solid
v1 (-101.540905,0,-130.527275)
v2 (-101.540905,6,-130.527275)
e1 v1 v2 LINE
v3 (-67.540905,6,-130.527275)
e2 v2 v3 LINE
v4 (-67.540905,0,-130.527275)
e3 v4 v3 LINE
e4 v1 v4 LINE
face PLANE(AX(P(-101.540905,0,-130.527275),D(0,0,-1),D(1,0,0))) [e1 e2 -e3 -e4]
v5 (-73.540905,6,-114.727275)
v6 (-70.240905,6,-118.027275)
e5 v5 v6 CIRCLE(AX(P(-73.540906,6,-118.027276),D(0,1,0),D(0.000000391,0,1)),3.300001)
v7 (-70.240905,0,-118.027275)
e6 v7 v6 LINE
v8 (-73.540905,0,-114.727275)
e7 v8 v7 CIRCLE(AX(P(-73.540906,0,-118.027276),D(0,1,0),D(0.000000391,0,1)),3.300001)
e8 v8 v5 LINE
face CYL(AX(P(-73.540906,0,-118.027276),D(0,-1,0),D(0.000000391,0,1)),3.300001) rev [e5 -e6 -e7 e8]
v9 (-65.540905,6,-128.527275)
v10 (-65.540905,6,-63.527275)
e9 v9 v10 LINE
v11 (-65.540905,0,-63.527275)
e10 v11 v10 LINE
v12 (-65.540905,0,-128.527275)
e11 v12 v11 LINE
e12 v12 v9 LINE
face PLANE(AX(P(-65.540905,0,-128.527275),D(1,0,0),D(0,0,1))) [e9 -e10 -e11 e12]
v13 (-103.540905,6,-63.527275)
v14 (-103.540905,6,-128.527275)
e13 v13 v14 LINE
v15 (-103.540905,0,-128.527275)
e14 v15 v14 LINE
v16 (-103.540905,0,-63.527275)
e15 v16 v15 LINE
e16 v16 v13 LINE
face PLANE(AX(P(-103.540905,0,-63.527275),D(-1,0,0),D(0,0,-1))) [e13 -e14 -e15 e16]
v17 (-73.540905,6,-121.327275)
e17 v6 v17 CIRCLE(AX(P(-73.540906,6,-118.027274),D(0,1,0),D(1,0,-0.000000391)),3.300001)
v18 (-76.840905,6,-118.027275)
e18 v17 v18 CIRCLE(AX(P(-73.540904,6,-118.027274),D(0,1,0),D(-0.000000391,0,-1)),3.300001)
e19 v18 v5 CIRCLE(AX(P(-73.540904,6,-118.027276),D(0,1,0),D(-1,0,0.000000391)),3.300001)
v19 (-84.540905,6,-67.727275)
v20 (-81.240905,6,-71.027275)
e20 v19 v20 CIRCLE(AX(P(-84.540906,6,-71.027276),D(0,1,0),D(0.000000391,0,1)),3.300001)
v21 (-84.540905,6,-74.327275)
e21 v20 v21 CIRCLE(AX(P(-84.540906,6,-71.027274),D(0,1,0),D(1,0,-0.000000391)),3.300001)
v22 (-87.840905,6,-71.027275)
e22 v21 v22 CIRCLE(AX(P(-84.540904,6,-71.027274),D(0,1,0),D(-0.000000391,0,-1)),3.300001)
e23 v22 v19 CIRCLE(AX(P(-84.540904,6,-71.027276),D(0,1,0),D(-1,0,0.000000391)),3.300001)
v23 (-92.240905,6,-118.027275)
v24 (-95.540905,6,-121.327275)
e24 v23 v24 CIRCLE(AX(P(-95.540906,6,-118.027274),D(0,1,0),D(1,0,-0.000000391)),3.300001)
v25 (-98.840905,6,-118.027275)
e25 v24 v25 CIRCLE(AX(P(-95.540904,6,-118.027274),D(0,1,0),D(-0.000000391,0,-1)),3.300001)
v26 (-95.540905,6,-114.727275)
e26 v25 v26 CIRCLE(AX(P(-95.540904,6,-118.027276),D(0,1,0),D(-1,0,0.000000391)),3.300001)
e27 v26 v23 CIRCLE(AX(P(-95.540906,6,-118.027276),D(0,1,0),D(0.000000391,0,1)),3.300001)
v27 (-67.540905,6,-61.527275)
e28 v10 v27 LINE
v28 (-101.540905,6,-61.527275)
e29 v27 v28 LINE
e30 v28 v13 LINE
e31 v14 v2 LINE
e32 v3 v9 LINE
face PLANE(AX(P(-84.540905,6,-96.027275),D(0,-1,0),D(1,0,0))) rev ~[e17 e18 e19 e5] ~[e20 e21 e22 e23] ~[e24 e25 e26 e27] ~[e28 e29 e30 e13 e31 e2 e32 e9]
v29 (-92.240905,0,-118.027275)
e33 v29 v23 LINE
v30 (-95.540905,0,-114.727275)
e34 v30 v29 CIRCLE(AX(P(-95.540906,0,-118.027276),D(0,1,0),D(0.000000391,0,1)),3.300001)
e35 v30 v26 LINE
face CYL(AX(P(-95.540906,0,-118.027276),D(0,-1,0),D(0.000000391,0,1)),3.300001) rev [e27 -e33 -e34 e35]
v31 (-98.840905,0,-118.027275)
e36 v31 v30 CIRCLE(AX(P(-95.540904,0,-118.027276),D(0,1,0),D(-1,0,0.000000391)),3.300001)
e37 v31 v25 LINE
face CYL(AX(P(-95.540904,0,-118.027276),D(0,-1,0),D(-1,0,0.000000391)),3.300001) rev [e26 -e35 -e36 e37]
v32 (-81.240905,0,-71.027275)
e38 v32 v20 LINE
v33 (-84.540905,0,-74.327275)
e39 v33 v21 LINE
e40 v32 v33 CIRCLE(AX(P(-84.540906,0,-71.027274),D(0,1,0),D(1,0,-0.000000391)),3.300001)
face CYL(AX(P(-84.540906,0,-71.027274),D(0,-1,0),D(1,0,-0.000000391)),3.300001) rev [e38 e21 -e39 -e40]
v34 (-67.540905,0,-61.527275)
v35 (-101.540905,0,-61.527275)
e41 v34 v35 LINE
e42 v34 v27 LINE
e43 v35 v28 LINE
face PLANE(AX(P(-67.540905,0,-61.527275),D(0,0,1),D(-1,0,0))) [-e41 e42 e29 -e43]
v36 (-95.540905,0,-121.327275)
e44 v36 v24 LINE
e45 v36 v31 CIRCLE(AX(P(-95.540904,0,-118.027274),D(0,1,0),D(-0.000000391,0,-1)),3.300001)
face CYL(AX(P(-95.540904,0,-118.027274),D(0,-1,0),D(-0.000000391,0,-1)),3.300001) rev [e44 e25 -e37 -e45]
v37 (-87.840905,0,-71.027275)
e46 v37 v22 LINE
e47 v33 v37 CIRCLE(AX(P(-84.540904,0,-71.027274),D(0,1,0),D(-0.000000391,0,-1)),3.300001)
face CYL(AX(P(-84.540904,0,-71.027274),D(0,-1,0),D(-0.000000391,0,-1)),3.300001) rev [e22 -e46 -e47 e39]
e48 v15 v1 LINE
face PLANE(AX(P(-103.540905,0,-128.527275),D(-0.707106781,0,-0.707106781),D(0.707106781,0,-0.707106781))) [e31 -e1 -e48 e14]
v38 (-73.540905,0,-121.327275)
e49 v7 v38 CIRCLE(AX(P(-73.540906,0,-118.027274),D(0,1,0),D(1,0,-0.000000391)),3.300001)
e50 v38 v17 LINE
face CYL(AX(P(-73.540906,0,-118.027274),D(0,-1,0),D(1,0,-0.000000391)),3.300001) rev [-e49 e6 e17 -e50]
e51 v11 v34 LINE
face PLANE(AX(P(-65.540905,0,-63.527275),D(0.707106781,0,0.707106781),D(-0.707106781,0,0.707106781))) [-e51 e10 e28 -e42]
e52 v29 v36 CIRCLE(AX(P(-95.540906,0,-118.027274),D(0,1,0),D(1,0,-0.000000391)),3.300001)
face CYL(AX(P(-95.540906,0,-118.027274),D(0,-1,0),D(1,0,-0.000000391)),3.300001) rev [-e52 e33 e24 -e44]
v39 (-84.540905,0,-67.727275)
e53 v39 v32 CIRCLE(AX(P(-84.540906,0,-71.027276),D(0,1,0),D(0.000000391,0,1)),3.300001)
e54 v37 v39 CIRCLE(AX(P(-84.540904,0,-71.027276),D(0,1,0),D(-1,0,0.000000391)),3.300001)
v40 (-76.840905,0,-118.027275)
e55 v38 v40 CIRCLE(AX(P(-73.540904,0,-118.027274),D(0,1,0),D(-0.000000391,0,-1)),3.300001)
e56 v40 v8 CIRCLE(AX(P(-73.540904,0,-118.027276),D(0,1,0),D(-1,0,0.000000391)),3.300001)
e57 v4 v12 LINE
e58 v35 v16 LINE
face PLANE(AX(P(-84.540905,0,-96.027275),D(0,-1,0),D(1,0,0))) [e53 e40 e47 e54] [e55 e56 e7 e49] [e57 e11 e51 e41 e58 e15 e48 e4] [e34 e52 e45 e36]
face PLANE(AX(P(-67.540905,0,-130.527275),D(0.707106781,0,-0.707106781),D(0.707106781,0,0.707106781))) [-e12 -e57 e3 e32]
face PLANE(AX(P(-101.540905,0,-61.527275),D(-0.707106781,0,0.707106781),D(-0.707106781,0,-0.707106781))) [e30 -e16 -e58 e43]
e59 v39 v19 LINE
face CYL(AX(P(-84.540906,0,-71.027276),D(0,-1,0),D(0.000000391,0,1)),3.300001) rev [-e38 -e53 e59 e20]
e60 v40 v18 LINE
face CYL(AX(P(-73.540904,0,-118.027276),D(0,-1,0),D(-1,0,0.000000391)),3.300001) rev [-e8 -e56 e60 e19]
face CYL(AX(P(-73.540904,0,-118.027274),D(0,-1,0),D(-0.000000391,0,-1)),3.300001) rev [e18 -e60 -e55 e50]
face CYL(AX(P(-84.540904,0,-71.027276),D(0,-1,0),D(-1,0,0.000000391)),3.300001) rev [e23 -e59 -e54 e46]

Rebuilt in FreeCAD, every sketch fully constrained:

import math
import FreeCAD as App
import Part
import Sketcher
Q = App.Units.Quantity

doc = App.newDocument("Part")
params = doc.addObject("Spreadsheet::Sheet", "Params")
for row, (alias, value) in enumerate([
    ("sketch1_radius", "3.300001 mm"),
    ("sketch1_width", "34 mm"),
    ("sketch1_height", "65 mm"),
    ("pad1_length", "6 mm"),
], start=1):
    params.set(f"A{row}", alias)
    params.set(f"B{row}", "=" + value)
    params.setAlias(f"B{row}", alias)

body = doc.addObject("PartDesign::Body", "Body")

# Sketch on XZ plane
sketch1 = body.newObject("Sketcher::SketchObject", "Sketch")
sketch1.AttachmentSupport = (doc.getObject("XZ_Plane"), [""])
sketch1.MapMode = "FlatFace"
sketch1.addGeometry([
    Part.LineSegment(App.Vector(-65.5, -63.5, 0), App.Vector(-67.5, -61.5, 0)),  # 0
    Part.LineSegment(App.Vector(-67.5, -61.5, 0), App.Vector(-101.5, -61.5, 0)),  # 1
    Part.LineSegment(App.Vector(-101.5, -61.5, 0), App.Vector(-103.5, -63.5, 0)),  # 2
    Part.LineSegment(App.Vector(-103.5, -63.5, 0), App.Vector(-103.5, -128.5, 0)),  # 3
    Part.LineSegment(App.Vector(-103.5, -128.5, 0), App.Vector(-101.5, -130.5, 0)),  # 4
    Part.LineSegment(App.Vector(-101.5, -130.5, 0), App.Vector(-67.5, -130.5, 0)),  # 5
    Part.LineSegment(App.Vector(-67.5, -130.5, 0), App.Vector(-65.5, -128.5, 0)),  # 6
    Part.LineSegment(App.Vector(-65.5, -128.5, 0), App.Vector(-65.5, -63.5, 0)),  # 7
    Part.ArcOfCircle(Part.Circle(App.Vector(-95.5, -118, 0), App.Vector(0, 0, 1), 3.3), math.radians(-90), math.radians(0)),  # 8
    Part.ArcOfCircle(Part.Circle(App.Vector(-95.5, -118, 0), App.Vector(0, 0, 1), 3.3), math.radians(-180), math.radians(-90)),  # 9
    Part.ArcOfCircle(Part.Circle(App.Vector(-95.5, -118, 0), App.Vector(0, 0, 1), 3.3), math.radians(90), math.radians(180)),  # 10
    Part.ArcOfCircle(Part.Circle(App.Vector(-95.5, -118, 0), App.Vector(0, 0, 1), 3.3), math.radians(0), math.radians(90)),  # 11
    Part.ArcOfCircle(Part.Circle(App.Vector(-73.5, -118, 0), App.Vector(0, 0, 1), 3.3), math.radians(-90), math.radians(0)),  # 12
    Part.ArcOfCircle(Part.Circle(App.Vector(-73.5, -118, 0), App.Vector(0, 0, 1), 3.3), math.radians(-180), math.radians(-90)),  # 13
    Part.ArcOfCircle(Part.Circle(App.Vector(-73.5, -118, 0), App.Vector(0, 0, 1), 3.3), math.radians(90), math.radians(180)),  # 14
    Part.ArcOfCircle(Part.Circle(App.Vector(-73.5, -118, 0), App.Vector(0, 0, 1), 3.3), math.radians(0), math.radians(90)),  # 15
    Part.ArcOfCircle(Part.Circle(App.Vector(-84.5, -71, 0), App.Vector(0, 0, 1), 3.3), math.radians(-90), math.radians(0)),  # 16
    Part.ArcOfCircle(Part.Circle(App.Vector(-84.5, -71, 0), App.Vector(0, 0, 1), 3.3), math.radians(-180), math.radians(-90)),  # 17
    Part.ArcOfCircle(Part.Circle(App.Vector(-84.5, -71, 0), App.Vector(0, 0, 1), 3.3), math.radians(90), math.radians(180)),  # 18
    Part.ArcOfCircle(Part.Circle(App.Vector(-84.5, -71, 0), App.Vector(0, 0, 1), 3.3), math.radians(0), math.radians(90)),  # 19
], False)
sketch1.addConstraint([
    Sketcher.Constraint("Coincident", 0, 2, 1, 1),
    Sketcher.Constraint("Coincident", 1, 2, 2, 1),
    Sketcher.Constraint("Coincident", 2, 2, 3, 1),
    Sketcher.Constraint("Coincident", 3, 2, 4, 1),
    Sketcher.Constraint("Coincident", 4, 2, 5, 1),
    Sketcher.Constraint("Coincident", 5, 2, 6, 1),
    Sketcher.Constraint("Coincident", 6, 2, 7, 1),
    Sketcher.Constraint("Coincident", 7, 2, 0, 1),
    Sketcher.Constraint("Tangent", 8, 1, 9, 2),
    Sketcher.Constraint("Tangent", 9, 1, 10, 2),
    Sketcher.Constraint("Tangent", 10, 1, 11, 2),
    Sketcher.Constraint("Tangent", 11, 1, 8, 2),
    Sketcher.Constraint("Tangent", 12, 1, 13, 2),
    Sketcher.Constraint("Tangent", 13, 1, 14, 2),
    Sketcher.Constraint("Tangent", 14, 1, 15, 2),
    Sketcher.Constraint("Tangent", 15, 1, 12, 2),
    Sketcher.Constraint("Tangent", 16, 1, 17, 2),
    Sketcher.Constraint("Tangent", 17, 1, 18, 2),
    Sketcher.Constraint("Tangent", 18, 1, 19, 2),
    Sketcher.Constraint("Tangent", 19, 1, 16, 2),
    Sketcher.Constraint("Horizontal", 1),
    Sketcher.Constraint("Vertical", 3),
    Sketcher.Constraint("Horizontal", 5),
    Sketcher.Constraint("Vertical", 7),
    Sketcher.Constraint("Equal", 8, 9),
    Sketcher.Constraint("Equal", 11, 12),
    Sketcher.Constraint("Equal", 12, 13),
    Sketcher.Constraint("Equal", 15, 16),
    Sketcher.Constraint("Equal", 16, 17),
    Sketcher.Constraint("Perpendicular", 0, 2),
    Sketcher.Constraint("Perpendicular", 2, 4),
    Sketcher.Constraint("Perpendicular", 4, 6),
    Sketcher.Constraint("Horizontal", 9, 3, 12, 3),
    Sketcher.Constraint("Horizontal", 3, 2, 6, 2),
    Sketcher.Constraint("Horizontal", 2, 2, 7, 2),
    Sketcher.Constraint("Horizontal", 15, 3, 9, 1),
    Sketcher.Constraint("Horizontal", 9, 1, 11, 1),
    Sketcher.Constraint("Horizontal", 11, 1, 13, 1),
    Sketcher.Constraint("Horizontal", 13, 1, 15, 1),
    Sketcher.Constraint("Horizontal", 19, 3, 17, 1),
    Sketcher.Constraint("Horizontal", 17, 1, 19, 1),
    Sketcher.Constraint("Vertical", 1, 2, 4, 2),
    Sketcher.Constraint("Vertical", 0, 2, 5, 2),
    Sketcher.Constraint("Vertical", 11, 3, 8, 1),
    Sketcher.Constraint("Vertical", 8, 1, 10, 1),
    Sketcher.Constraint("Vertical", 15, 3, 12, 1),
    Sketcher.Constraint("Vertical", 12, 1, 14, 1),
    Sketcher.Constraint("Vertical", 19, 3, 16, 1),
    Sketcher.Constraint("Vertical", 16, 1, 18, 1),
    Sketcher.Constraint("Radius", 8, Q("3.300001 mm")),
    Sketcher.Constraint("DistanceX", 1, 2, 1, 1, Q("34 mm")),
    Sketcher.Constraint("DistanceY", 3, 2, 3, 1, Q("65 mm")),
    Sketcher.Constraint("DistanceX", 8, 3, 12, 3, Q("22 mm")),
    Sketcher.Constraint("DistanceY", 9, 3, 16, 3, Q("47 mm")),
    Sketcher.Constraint("DistanceX", 8, 3, 16, 3, Q("11 mm")),
    Sketcher.Constraint("DistanceX", 17, 3, 0, 2, Q("16.999999 mm")),
    Sketcher.Constraint("DistanceX", 2, 2, 1, 2, Q("2 mm")),
    Sketcher.Constraint("DistanceY", 17, 3, 0, 2, Q("9.499999 mm")),
    Sketcher.Constraint("DistanceX", 8, 3, -1, 1, Q("95.540906 mm")),
    Sketcher.Constraint("DistanceY", 8, 3, -1, 1, Q("118.027274 mm")),
])
sketch1.setExpression("Constraints[49]", "Params.sketch1_radius")
sketch1.setExpression("Constraints[50]", "Params.sketch1_width")
sketch1.setExpression("Constraints[51]", "Params.sketch1_height")
pad1 = body.newObject("PartDesign::Pad", "Pad")
pad1.Profile = sketch1
pad1.setExpression("Length", "Params.pad1_length")
pad1.Reversed = True

doc.recompute()
